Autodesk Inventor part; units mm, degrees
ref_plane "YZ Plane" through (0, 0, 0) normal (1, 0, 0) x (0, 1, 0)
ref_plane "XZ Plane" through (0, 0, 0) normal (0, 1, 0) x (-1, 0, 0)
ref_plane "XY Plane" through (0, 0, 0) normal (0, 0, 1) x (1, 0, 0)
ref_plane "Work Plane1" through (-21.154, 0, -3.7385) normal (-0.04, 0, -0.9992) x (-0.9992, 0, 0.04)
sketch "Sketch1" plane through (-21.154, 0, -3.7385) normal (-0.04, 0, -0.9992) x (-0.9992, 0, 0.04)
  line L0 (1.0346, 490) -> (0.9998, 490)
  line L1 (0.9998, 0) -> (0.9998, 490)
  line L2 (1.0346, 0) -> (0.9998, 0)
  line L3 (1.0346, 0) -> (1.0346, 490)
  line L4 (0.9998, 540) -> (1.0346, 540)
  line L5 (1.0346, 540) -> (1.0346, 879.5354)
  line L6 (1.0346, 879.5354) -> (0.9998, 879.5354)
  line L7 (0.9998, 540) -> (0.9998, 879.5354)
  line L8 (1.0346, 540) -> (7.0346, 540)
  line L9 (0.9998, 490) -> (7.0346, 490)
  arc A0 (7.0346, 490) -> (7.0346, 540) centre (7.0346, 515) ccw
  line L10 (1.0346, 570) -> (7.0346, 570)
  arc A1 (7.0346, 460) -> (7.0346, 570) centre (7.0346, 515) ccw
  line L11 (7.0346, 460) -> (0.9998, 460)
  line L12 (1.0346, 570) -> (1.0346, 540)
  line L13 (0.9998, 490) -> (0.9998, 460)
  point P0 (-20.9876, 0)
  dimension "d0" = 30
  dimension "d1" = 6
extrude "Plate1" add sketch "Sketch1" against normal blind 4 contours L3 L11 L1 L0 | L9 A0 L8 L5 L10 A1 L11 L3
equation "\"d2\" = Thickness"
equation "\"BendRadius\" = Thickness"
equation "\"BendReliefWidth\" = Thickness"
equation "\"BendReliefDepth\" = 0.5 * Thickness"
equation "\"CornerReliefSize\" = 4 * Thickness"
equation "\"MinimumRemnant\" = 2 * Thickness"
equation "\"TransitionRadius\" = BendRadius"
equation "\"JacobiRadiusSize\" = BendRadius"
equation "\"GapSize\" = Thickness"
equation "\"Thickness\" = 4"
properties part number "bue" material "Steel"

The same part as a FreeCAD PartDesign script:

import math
import FreeCAD as App
import Part
import Sketcher
from FreeCAD import Vector
Q = App.Units.Quantity

doc = App.newDocument("Part")
body = doc.addObject("PartDesign::Body", "Body")

sketch1 = doc.addObject("Sketcher::SketchObject", "Sketch")
body.addObject(sketch1)
sketch1.Placement = App.Placement(Vector(-21.154, 0, -3.7385), App.Rotation(Vector(-0.99919968, 0, 0.039999987), Vector(0, 0.999999999, 0), Vector(-0.039999987, 0, -0.99919968), "ZXY"))
sketch1.addGeometry([
    Part.LineSegment(Vector(1, 460, 0), Vector(7, 460, 0)),
    Part.ArcOfCircle(Part.Circle(Vector(7, 515, 0), Vector(0, 0, 1), 55), math.radians(-90), math.radians(90)),
    Part.LineSegment(Vector(7, 570, 0), Vector(1, 570, 0)),
    Part.LineSegment(Vector(1, 570, 0), Vector(1, 540, 0)),
    Part.LineSegment(Vector(1, 540, 0), Vector(7, 540, 0)),
    Part.ArcOfCircle(Part.Circle(Vector(7, 515, 0), Vector(0, 0, 1), 25), math.radians(-90), math.radians(90)),
    Part.LineSegment(Vector(7, 490, 0), Vector(1, 490, 0)),
    Part.LineSegment(Vector(1, 490, 0), Vector(1, 460, 0)),
], False)
sketch1.addConstraint([
    Sketcher.Constraint("Tangent", 0, 2, 1, 1),
    Sketcher.Constraint("Tangent", 1, 2, 2, 1),
    Sketcher.Constraint("Coincident", 2, 2, 3, 1),
    Sketcher.Constraint("Coincident", 3, 2, 4, 1),
    Sketcher.Constraint("Tangent", 4, 2, 5, 2),
    Sketcher.Constraint("Tangent", 5, 1, 6, 1),
    Sketcher.Constraint("Coincident", 6, 2, 7, 1),
    Sketcher.Constraint("Coincident", 7, 2, 0, 1),
    Sketcher.Constraint("Horizontal", 0),
    Sketcher.Constraint("Horizontal", 2),
    Sketcher.Constraint("Vertical", 3),
    Sketcher.Constraint("Horizontal", 4),
    Sketcher.Constraint("Horizontal", 6),
    Sketcher.Constraint("Vertical", 7),
    Sketcher.Constraint("Coincident", 5, 3, 1, 3),
    Sketcher.Constraint("DistanceX", 2, 2, 2, 1, Q("6 mm")),
    Sketcher.Constraint("DistanceY", 3, 2, 3, 1, Q("30 mm")),
    Sketcher.Constraint("Radius", 1, Q("55 mm")),
    Sketcher.Constraint("DistanceY", -1, 1, 1, 3, Q("515 mm")),
    Sketcher.Constraint("DistanceX", 0, 1, 0, 2, Q("6.0348 mm")),
    Sketcher.Constraint("DistanceX", -1, 1, 1, 3, Q("7.0346 mm")),
])
pad1 = doc.addObject("PartDesign::Pad", "Pad")
body.addObject(pad1)
pad1.Profile = sketch1
pad1.Length = 4
pad1.Reversed = True

doc.recompute()
